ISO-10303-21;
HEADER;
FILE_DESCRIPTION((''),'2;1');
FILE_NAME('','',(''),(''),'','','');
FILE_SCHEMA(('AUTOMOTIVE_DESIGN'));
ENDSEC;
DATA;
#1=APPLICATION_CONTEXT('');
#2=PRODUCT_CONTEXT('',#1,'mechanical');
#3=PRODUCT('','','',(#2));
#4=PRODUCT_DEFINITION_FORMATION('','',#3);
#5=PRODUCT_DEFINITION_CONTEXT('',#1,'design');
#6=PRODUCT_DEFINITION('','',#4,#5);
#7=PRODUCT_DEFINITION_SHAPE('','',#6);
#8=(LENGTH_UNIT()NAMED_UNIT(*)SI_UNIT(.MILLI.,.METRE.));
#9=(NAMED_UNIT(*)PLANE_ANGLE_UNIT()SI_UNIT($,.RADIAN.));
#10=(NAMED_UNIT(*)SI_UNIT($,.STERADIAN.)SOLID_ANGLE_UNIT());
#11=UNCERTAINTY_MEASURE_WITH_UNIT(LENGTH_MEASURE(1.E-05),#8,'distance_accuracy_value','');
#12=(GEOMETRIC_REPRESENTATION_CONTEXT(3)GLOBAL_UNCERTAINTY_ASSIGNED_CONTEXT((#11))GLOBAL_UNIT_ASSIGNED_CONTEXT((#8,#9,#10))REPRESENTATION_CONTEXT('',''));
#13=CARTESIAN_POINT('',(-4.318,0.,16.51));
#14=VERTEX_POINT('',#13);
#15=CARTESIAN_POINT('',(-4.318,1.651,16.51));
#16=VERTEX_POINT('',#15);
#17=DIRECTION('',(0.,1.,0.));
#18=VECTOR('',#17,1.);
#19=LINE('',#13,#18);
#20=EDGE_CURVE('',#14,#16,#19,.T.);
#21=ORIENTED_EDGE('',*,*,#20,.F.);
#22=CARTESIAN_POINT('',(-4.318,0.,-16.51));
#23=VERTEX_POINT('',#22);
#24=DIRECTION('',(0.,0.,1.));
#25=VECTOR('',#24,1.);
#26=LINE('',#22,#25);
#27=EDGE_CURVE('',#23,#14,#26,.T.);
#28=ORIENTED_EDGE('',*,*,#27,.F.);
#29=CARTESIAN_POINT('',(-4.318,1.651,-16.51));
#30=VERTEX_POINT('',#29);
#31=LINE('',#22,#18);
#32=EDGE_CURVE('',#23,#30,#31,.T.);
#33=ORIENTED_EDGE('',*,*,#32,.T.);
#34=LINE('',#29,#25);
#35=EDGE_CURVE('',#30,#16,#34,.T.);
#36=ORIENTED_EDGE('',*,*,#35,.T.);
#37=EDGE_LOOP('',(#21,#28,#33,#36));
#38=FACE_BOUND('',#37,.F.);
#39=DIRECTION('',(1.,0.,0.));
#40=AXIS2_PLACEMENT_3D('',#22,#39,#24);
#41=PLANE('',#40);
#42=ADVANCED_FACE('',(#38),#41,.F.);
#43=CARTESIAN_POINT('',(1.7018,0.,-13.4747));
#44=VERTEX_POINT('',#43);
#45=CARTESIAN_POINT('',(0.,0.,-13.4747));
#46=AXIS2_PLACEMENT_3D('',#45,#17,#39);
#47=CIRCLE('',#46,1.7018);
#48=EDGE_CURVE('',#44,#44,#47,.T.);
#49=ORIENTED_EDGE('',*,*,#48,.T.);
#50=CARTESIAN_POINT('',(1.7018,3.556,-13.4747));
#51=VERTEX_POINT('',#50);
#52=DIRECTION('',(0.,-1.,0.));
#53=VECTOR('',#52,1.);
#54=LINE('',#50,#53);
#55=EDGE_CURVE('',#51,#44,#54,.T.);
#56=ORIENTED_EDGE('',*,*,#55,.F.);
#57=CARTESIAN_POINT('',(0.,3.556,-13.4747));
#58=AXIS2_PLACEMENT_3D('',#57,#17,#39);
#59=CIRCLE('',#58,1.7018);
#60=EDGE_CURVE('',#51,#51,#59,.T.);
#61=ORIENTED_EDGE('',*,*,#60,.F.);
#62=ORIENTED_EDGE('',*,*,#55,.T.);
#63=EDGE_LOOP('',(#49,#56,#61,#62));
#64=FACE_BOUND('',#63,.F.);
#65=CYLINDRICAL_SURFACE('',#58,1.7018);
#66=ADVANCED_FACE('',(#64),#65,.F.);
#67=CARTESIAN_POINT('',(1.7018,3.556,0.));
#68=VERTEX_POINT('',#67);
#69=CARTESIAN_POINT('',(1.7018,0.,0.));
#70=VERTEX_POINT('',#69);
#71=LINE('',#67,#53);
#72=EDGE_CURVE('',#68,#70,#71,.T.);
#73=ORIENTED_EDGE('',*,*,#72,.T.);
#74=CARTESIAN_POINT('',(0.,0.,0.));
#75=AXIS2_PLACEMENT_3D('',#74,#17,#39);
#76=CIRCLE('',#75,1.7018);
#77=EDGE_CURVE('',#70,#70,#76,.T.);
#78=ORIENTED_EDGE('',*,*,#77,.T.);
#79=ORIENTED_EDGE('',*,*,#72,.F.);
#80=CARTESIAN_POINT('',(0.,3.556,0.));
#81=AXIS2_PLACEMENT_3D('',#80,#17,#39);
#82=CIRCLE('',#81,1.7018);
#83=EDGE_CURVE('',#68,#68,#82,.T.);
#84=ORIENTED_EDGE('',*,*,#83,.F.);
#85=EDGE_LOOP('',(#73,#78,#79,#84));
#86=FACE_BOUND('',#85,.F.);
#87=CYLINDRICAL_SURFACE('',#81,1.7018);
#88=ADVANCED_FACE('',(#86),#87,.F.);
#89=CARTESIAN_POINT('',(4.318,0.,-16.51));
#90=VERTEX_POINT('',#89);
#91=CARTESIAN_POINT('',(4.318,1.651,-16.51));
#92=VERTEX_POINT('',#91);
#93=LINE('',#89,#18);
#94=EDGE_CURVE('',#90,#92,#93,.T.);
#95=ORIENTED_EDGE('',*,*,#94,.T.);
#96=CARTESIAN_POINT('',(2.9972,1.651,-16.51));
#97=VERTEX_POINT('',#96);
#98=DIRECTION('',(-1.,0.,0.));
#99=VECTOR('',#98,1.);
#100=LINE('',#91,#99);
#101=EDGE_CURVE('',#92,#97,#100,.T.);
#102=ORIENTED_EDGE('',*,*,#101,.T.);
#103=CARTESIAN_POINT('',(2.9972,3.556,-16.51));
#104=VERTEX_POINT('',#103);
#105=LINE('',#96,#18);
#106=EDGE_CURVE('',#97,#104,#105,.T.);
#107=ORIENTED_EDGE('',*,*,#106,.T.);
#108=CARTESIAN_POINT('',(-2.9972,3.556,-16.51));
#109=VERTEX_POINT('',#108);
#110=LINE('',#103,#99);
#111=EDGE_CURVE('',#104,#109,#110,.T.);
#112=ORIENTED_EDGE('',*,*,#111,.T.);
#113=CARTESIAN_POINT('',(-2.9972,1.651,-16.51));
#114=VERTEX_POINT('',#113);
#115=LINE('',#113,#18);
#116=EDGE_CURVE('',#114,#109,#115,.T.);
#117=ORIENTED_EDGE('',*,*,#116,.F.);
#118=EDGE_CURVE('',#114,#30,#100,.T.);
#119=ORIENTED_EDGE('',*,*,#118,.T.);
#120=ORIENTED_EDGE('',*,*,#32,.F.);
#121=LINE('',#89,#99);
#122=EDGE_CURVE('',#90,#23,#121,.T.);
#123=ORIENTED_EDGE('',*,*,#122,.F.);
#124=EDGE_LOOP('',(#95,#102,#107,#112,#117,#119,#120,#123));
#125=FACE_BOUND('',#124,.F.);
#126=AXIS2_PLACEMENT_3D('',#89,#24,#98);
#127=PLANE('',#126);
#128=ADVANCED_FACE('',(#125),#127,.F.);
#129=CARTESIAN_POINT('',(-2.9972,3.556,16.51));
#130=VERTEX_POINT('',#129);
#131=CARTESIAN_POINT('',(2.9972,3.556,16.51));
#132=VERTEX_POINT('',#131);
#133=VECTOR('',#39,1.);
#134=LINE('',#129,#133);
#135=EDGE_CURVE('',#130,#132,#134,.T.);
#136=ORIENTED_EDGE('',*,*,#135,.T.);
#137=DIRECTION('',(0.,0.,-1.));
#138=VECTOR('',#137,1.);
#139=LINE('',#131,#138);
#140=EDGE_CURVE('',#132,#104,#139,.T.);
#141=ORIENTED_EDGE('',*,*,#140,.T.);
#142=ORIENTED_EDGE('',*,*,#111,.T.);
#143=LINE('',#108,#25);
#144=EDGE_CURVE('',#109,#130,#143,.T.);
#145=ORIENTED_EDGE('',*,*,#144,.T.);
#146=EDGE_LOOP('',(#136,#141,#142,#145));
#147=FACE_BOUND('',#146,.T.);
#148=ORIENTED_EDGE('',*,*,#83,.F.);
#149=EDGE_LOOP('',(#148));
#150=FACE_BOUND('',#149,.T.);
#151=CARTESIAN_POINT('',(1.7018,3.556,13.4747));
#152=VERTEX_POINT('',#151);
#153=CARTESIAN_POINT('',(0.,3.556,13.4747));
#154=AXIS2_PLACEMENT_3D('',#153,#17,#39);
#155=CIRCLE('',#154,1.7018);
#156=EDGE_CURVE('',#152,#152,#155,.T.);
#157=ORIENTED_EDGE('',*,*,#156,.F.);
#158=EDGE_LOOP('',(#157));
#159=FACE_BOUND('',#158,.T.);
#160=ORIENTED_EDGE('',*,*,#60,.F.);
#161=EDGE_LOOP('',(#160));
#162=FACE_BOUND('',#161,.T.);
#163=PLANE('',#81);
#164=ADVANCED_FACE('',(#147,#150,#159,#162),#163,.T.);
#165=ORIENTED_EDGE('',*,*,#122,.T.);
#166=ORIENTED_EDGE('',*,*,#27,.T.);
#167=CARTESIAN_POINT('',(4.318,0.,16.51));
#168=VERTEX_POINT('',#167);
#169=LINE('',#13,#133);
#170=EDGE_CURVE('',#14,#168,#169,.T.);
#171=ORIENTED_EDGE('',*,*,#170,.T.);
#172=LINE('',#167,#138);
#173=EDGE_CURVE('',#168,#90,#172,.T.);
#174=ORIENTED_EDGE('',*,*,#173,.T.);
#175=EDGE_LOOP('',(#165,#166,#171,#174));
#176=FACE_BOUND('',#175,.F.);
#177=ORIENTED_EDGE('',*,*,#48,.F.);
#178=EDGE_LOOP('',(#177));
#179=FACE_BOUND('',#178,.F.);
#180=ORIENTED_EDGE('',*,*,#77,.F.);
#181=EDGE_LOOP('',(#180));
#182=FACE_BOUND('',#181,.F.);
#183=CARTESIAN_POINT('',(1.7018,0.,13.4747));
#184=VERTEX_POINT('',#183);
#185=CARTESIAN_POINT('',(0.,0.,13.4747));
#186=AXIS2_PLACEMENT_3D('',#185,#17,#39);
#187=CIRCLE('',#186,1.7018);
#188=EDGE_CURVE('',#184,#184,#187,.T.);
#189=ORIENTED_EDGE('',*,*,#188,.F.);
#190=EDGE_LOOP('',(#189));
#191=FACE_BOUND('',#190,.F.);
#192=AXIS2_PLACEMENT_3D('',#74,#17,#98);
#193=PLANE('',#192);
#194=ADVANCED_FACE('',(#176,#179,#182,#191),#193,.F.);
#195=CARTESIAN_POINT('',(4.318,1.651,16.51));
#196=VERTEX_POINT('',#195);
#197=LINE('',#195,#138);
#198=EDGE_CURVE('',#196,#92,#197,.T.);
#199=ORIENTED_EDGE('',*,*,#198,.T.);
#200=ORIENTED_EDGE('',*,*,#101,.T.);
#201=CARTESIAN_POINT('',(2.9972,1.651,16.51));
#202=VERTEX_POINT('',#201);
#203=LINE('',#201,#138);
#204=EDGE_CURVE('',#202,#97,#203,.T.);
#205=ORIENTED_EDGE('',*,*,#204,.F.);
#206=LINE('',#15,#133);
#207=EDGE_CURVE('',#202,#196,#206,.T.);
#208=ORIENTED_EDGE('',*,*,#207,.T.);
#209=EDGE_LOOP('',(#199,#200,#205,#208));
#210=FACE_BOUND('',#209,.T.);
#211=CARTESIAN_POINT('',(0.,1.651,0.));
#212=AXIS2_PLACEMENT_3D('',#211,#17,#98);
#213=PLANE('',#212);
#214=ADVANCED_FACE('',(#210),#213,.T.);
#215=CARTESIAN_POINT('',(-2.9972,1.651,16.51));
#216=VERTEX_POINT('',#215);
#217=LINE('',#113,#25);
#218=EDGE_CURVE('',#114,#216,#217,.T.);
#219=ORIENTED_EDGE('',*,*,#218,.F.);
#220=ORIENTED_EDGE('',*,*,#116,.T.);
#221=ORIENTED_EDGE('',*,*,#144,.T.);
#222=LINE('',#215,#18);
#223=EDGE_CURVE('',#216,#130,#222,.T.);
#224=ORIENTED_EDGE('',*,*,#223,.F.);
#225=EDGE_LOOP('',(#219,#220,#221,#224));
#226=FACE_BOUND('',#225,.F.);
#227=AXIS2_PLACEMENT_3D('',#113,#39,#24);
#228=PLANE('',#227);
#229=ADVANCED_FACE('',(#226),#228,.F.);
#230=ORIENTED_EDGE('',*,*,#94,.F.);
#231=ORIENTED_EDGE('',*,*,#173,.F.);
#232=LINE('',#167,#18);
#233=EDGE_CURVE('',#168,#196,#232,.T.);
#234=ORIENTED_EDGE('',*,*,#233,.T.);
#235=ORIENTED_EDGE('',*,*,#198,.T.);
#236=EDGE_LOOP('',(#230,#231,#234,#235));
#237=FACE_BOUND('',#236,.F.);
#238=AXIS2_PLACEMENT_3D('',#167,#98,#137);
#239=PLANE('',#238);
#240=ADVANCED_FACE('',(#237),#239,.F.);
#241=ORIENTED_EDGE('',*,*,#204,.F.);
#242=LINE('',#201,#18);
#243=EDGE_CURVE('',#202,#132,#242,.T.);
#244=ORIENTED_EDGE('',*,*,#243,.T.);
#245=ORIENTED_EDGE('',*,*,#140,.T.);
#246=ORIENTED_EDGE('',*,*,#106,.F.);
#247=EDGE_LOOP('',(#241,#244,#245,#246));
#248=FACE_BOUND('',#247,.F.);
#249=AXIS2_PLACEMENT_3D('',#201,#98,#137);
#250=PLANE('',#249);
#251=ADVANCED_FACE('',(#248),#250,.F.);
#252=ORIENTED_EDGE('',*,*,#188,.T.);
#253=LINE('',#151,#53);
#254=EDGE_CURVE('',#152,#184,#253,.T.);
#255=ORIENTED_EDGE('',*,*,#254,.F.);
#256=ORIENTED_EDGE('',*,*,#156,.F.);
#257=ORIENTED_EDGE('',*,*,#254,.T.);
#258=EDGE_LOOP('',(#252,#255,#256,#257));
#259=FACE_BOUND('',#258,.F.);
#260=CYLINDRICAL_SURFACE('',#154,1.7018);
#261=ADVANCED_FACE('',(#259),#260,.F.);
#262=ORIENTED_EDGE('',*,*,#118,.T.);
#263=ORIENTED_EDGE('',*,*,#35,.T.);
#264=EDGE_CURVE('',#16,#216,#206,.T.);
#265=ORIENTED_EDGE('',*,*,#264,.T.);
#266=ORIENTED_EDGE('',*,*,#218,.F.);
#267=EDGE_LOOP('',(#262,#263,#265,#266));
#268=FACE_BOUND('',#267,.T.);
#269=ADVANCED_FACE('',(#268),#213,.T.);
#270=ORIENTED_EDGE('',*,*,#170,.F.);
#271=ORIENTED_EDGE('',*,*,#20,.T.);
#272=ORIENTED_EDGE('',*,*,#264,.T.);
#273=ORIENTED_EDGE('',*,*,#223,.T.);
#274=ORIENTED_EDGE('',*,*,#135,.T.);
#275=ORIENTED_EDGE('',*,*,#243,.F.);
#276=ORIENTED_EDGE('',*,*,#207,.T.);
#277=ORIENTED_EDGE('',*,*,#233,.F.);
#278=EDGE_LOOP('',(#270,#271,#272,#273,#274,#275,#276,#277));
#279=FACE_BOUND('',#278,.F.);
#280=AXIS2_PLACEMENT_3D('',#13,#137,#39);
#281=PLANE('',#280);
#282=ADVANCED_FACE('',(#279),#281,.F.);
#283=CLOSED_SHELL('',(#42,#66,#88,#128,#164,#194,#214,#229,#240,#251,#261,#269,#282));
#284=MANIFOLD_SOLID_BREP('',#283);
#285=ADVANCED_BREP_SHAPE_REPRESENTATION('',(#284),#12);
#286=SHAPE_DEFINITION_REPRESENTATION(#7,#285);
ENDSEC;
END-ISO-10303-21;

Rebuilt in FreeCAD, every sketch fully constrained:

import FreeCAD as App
import Part
import Sketcher

V = App.Vector
Q = App.Units.Quantity

doc = App.newDocument("Part")
body = doc.addObject("PartDesign::Body", "Body")

sketch1 = body.newObject("Sketcher::SketchObject", "Sketch")
sketch1.AttachmentSupport = (doc.getObject("XZ_Plane"), [""])
sketch1.MapMode = "FlatFace"
sketch1.addGeometry([
    Part.LineSegment(V(-4, -17, 0), V(-4, 17, 0)),
    Part.LineSegment(V(-4, 17, 0), V(4, 17, 0)),
    Part.LineSegment(V(4, 17, 0), V(4, -17, 0)),
    Part.LineSegment(V(4, -17, 0), V(-4, -17, 0)),
], False)
sketch1.addConstraint([
    Sketcher.Constraint("Coincident", 0, 2, 1, 1),
    Sketcher.Constraint("Coincident", 1, 2, 2, 1),
    Sketcher.Constraint("Coincident", 2, 2, 3, 1),
    Sketcher.Constraint("Coincident", 3, 2, 0, 1),
    Sketcher.Constraint("Vertical", 0),
    Sketcher.Constraint("Horizontal", 1),
    Sketcher.Constraint("Vertical", 2),
    Sketcher.Constraint("Horizontal", 3),
    Sketcher.Constraint("Symmetric", 0, 2, 2, 2, -1, 1),
    Sketcher.Constraint("DistanceY", 0, 1, 0, 2, Q("1.3 in")),
    Sketcher.Constraint("DistanceX", 1, 1, 1, 2, Q("0.34 in")),
])
pad1 = body.newObject("PartDesign::Pad", "Pad")
pad1.Profile = sketch1
pad1.Length = Q("0.065 in")
pad1.Reversed = True

sketch2 = body.newObject("Sketcher::SketchObject", "Sketch001")
sketch2.AttachmentSupport = (doc.getObject("XZ_Plane"), [""])
sketch2.MapMode = "FlatFace"
sketch2.AttachmentOffset = App.Placement(V(0, 0, -0.065 * 25.4), App.Rotation())
sketch2.addGeometry([
    Part.LineSegment(V(-3, -17, 0), V(-3, 17, 0)),
    Part.LineSegment(V(-3, 17, 0), V(3, 17, 0)),
    Part.LineSegment(V(3, 17, 0), V(3, -17, 0)),
    Part.LineSegment(V(3, -17, 0), V(-3, -17, 0)),
], False)
sketch2.addConstraint([
    Sketcher.Constraint("Coincident", 0, 2, 1, 1),
    Sketcher.Constraint("Coincident", 1, 2, 2, 1),
    Sketcher.Constraint("Coincident", 2, 2, 3, 1),
    Sketcher.Constraint("Coincident", 3, 2, 0, 1),
    Sketcher.Constraint("Vertical", 0),
    Sketcher.Constraint("Horizontal", 1),
    Sketcher.Constraint("Vertical", 2),
    Sketcher.Constraint("Horizontal", 3),
    Sketcher.Constraint("Symmetric", 0, 2, 2, 2, -1, 1),
    Sketcher.Constraint("DistanceY", 0, 1, 0, 2, Q("1.3 in")),
    Sketcher.Constraint("DistanceX", 1, 1, 1, 2, Q("0.236 in")),
])
pad2 = body.newObject("PartDesign::Pad", "Pad001")
pad2.Profile = sketch2
pad2.Length = Q("0.075 in")
pad2.Reversed = True

sketch3 = body.newObject("Sketcher::SketchObject", "Sketch002")
sketch3.AttachmentSupport = (doc.getObject("XZ_Plane"), [""])
sketch3.MapMode = "FlatFace"
sketch3.AttachmentOffset = App.Placement(V(0, 0, -0.14 * 25.4), App.Rotation())
sketch3.addGeometry([
    Part.Circle(V(0, 0, 0), V(0, 0, 1), 1.7),
    Part.Circle(V(0, 13.5, 0), V(0, 0, 1), 1.7),
    Part.Circle(V(0, -13.5, 0), V(0, 0, 1), 1.7),
], False)
sketch3.addConstraint([
    Sketcher.Constraint("Coincident", 0, 3, -1, 1),
    Sketcher.Constraint("Equal", 0, 1),
    Sketcher.Constraint("Equal", 1, 2),
    Sketcher.Constraint("Symmetric", 1, 3, 2, 3, -1, 1),
    Sketcher.Constraint("PointOnObject", 1, 3, -2),
    Sketcher.Constraint("Diameter", 0, Q("0.134 in")),
    Sketcher.Constraint("DistanceY", -1, 1, 1, 3, Q("0.5305 in")),
])
pocket1 = body.newObject("PartDesign::Pocket", "Pocket")
pocket1.Profile = sketch3
pocket1.Type = "ThroughAll"
pocket1.Reversed = True

doc.recompute()
